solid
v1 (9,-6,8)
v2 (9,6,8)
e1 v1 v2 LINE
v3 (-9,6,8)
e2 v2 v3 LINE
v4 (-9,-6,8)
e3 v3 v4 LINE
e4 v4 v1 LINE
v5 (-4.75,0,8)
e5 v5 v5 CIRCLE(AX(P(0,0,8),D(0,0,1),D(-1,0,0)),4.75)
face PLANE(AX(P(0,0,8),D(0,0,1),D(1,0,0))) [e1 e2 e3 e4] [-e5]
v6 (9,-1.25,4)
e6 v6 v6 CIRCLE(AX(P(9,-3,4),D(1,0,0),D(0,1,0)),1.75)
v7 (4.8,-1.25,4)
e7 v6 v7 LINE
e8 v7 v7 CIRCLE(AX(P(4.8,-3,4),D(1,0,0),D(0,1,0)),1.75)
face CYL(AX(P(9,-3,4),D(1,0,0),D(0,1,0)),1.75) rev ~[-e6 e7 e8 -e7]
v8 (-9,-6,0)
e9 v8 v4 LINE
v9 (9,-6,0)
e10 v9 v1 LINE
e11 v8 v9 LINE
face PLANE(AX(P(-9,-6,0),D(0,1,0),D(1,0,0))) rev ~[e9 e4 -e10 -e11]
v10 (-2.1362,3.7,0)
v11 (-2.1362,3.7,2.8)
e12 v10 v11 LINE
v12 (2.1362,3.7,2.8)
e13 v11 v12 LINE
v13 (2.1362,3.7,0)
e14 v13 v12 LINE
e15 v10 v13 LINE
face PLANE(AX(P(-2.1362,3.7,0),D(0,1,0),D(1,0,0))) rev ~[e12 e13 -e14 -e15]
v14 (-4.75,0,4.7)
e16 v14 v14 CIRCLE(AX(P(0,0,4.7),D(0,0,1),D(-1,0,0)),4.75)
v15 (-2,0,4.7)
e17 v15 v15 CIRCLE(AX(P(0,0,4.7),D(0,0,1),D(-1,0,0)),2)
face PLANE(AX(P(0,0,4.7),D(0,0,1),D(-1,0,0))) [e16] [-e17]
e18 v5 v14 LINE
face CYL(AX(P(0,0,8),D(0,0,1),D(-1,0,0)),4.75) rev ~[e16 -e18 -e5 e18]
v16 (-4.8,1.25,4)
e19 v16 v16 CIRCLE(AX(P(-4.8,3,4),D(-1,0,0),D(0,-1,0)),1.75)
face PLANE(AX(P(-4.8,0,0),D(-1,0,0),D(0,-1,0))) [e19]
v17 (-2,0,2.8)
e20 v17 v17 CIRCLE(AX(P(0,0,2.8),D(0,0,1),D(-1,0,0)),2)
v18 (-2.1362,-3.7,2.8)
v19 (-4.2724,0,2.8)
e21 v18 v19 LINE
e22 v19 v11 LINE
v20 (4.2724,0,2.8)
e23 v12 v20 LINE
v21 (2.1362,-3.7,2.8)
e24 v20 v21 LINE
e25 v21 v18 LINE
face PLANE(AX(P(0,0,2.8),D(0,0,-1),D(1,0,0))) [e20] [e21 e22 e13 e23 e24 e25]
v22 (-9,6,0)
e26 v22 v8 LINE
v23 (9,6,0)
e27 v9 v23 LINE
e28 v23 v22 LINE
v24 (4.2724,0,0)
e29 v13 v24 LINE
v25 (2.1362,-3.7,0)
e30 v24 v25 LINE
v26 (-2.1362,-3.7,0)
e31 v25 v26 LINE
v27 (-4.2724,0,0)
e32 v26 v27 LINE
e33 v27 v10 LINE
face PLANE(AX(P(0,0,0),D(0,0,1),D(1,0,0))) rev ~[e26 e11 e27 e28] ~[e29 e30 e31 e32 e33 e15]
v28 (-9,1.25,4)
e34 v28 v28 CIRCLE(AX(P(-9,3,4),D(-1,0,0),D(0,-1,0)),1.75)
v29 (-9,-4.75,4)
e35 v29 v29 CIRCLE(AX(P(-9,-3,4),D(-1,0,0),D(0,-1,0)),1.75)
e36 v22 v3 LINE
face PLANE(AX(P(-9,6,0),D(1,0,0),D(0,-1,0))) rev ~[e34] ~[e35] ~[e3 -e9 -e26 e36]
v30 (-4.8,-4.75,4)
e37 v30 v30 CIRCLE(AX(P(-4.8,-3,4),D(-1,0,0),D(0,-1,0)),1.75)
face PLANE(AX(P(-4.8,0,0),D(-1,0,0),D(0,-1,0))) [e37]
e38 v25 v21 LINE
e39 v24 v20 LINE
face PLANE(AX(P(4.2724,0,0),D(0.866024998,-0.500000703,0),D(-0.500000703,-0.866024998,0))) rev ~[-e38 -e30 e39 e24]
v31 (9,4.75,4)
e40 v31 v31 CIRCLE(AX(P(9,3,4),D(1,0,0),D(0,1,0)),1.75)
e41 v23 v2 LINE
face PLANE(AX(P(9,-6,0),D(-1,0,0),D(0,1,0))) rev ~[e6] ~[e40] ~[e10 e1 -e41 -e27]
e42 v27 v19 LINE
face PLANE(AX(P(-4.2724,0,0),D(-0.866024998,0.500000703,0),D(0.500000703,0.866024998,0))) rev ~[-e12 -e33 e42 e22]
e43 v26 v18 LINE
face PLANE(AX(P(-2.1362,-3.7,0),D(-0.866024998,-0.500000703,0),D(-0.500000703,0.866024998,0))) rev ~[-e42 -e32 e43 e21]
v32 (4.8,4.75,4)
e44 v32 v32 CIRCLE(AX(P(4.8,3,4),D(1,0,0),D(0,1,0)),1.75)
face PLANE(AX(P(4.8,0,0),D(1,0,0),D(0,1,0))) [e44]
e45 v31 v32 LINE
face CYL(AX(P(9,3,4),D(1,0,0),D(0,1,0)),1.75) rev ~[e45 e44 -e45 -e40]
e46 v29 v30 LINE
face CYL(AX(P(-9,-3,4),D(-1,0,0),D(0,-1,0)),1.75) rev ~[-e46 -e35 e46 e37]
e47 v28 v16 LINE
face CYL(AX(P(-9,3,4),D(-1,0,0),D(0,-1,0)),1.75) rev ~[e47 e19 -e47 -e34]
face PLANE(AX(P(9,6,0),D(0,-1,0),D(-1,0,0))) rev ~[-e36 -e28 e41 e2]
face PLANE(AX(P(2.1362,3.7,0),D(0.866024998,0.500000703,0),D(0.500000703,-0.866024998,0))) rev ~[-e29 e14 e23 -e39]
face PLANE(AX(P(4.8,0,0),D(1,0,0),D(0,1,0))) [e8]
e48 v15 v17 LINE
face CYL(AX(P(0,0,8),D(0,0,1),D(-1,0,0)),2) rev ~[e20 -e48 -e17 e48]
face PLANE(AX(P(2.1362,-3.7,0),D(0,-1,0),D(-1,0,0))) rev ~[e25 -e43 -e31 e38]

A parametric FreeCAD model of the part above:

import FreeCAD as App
import Part
import Sketcher
Q = App.Units.Quantity

doc = App.newDocument("Part")
body = doc.addObject("PartDesign::Body", "Body")

sketch1 = body.newObject("Sketcher::SketchObject", "Sketch")
sketch1.AttachmentSupport = (doc.getObject("XY_Plane"), [""])
sketch1.MapMode = "FlatFace"
sketch1.addGeometry([
    Part.LineSegment(App.Vector(-9, 6, 0), App.Vector(-9, -6, 0)),
    Part.LineSegment(App.Vector(-9, -6, 0), App.Vector(9, -6, 0)),
    Part.LineSegment(App.Vector(9, -6, 0), App.Vector(9, 6, 0)),
    Part.LineSegment(App.Vector(9, 6, 0), App.Vector(-9, 6, 0)),
], False)
sketch1.addConstraint([
    Sketcher.Constraint("Coincident", 0, 2, 1, 1),
    Sketcher.Constraint("Coincident", 1, 2, 2, 1),
    Sketcher.Constraint("Coincident", 2, 2, 3, 1),
    Sketcher.Constraint("Coincident", 3, 2, 0, 1),
    Sketcher.Constraint("Vertical", 0),
    Sketcher.Constraint("Horizontal", 1),
    Sketcher.Constraint("Vertical", 2),
    Sketcher.Constraint("Horizontal", 3),
    Sketcher.Constraint("Symmetric", 0, 2, 2, 2, -1, 1),
    Sketcher.Constraint("DistanceX", 1, 1, 1, 2, 18.0),
    Sketcher.Constraint("DistanceY", 0, 2, 0, 1, 12.0),
])
pad1 = body.newObject("PartDesign::Pad", "Pad")
pad1.Profile = sketch1
pad1.Length = 8

sketch2 = body.newObject("Sketcher::SketchObject", "Sketch001")
sketch2.AttachmentSupport = (doc.getObject("XY_Plane"), [""])
sketch2.MapMode = "FlatFace"
sketch2.addGeometry([
    Part.LineSegment(App.Vector(-2.1, 3.7, 0), App.Vector(2.1, 3.7, 0)),
    Part.LineSegment(App.Vector(2.1, 3.7, 0), App.Vector(4.3, 0, 0)),
    Part.LineSegment(App.Vector(4.3, 0, 0), App.Vector(2.1, -3.7, 0)),
    Part.LineSegment(App.Vector(2.1, -3.7, 0), App.Vector(-2.1, -3.7, 0)),
    Part.LineSegment(App.Vector(-2.1, -3.7, 0), App.Vector(-4.3, 0, 0)),
    Part.LineSegment(App.Vector(-4.3, 0, 0), App.Vector(-2.1, 3.7, 0)),
], False)
sketch2.addConstraint([
    Sketcher.Constraint("Coincident", 0, 2, 1, 1),
    Sketcher.Constraint("Coincident", 1, 2, 2, 1),
    Sketcher.Constraint("Coincident", 2, 2, 3, 1),
    Sketcher.Constraint("Coincident", 3, 2, 4, 1),
    Sketcher.Constraint("Coincident", 4, 2, 5, 1),
    Sketcher.Constraint("Coincident", 5, 2, 0, 1),
    Sketcher.Constraint("Horizontal", 0),
    Sketcher.Constraint("Horizontal", 3),
    Sketcher.Constraint("Symmetric", 0, 2, 3, 2, -1, 1),
    Sketcher.Constraint("Symmetric", 1, 2, 4, 2, -1, 1),
    Sketcher.Constraint("PointOnObject", 1, 2, -1),
    Sketcher.Constraint("Parallel", 2, 5),
    Sketcher.Constraint("Vertical", 0, 2, 2, 2),
    Sketcher.Constraint("DistanceY", -1, 1, 0, 2, 3.7),
    Sketcher.Constraint("Angle", 1, Q("-60 deg")),
    Sketcher.Constraint("DistanceX", 0, 1, 0, 2, 4.2724),
])
pocket1 = body.newObject("PartDesign::Pocket", "Pocket")
pocket1.Profile = sketch2
pocket1.Length = 2.8
pocket1.Reversed = True

sketch3 = body.newObject("Sketcher::SketchObject", "Sketch002")
sketch3.AttachmentSupport = (doc.getObject("XY_Plane"), [""])
sketch3.MapMode = "FlatFace"
sketch3.AttachmentOffset = App.Placement(App.Vector(0, 0, 8), App.Rotation())
sketch3.addGeometry(Part.Circle(App.Vector(0, 0, 0), App.Vector(0, 0, 1), 2), False)
sketch3.addConstraint([
    Sketcher.Constraint("Coincident", 0, 3, -1, 1),
    Sketcher.Constraint("Diameter", 0, 4.0),
])
pocket2 = body.newObject("PartDesign::Pocket", "Pocket001")
pocket2.Profile = sketch3
pocket2.Length = 10

sketch4 = body.newObject("Sketcher::SketchObject", "Sketch003")
sketch4.AttachmentSupport = (doc.getObject("XY_Plane"), [""])
sketch4.MapMode = "FlatFace"
sketch4.AttachmentOffset = App.Placement(App.Vector(0, 0, 8), App.Rotation())
sketch4.addGeometry([
    Part.Circle(App.Vector(0, 0, 0), App.Vector(0, 0, 1), 4.8),
    Part.Circle(App.Vector(0, 0, 0), App.Vector(0, 0, 1), 2),
], False)
sketch4.addConstraint([
    Sketcher.Constraint("Coincident", 0, 3, -1, 1),
    Sketcher.Constraint("Coincident", 1, 3, -1, 1),
    Sketcher.Constraint("Diameter", 0, 9.5),
    Sketcher.Constraint("Diameter", 1, 4.0),
])
pocket3 = body.newObject("PartDesign::Pocket", "Pocket002")
pocket3.Profile = sketch4
pocket3.Length = 3.3

sketch5 = body.newObject("Sketcher::SketchObject", "Sketch004")
sketch5.AttachmentSupport = (doc.getObject("YZ_Plane"), [""])
sketch5.MapMode = "FlatFace"
sketch5.AttachmentOffset = App.Placement(App.Vector(0, 0, 9), App.Rotation())
sketch5.addGeometry([
    Part.Circle(App.Vector(-3, 4, 0), App.Vector(0, 0, 1), 1.8),
    Part.Circle(App.Vector(3, 4, 0), App.Vector(0, 0, 1), 1.8),
], False)
sketch5.addConstraint([
    Sketcher.Constraint("Equal", 0, 1),
    Sketcher.Constraint("Symmetric", 0, 3, 1, 3, -2),
    Sketcher.Constraint("Diameter", 0, 3.5),
    Sketcher.Constraint("DistanceX", 0, 3, -1, 1, 3.0),
    Sketcher.Constraint("DistanceY", -1, 1, 0, 3, 4.0),
])
pocket4 = body.newObject("PartDesign::Pocket", "Pocket003")
pocket4.Profile = sketch5
pocket4.Length = 4.2

sketch6 = body.newObject("Sketcher::SketchObject", "Sketch005")
sketch6.AttachmentSupport = (doc.getObject("YZ_Plane"), [""])
sketch6.MapMode = "FlatFace"
sketch6.AttachmentOffset = App.Placement(App.Vector(0, 0, -9), App.Rotation())
sketch6.addGeometry([
    Part.Circle(App.Vector(3, 4, 0), App.Vector(0, 0, 1), 1.8),
    Part.Circle(App.Vector(-3, 4, 0), App.Vector(0, 0, 1), 1.8),
], False)
sketch6.addConstraint([
    Sketcher.Constraint("Equal", 0, 1),
    Sketcher.Constraint("Symmetric", 0, 3, 1, 3, -2),
    Sketcher.Constraint("Diameter", 0, 3.5),
    Sketcher.Constraint("DistanceX", -1, 1, 0, 3, 3.0),
    Sketcher.Constraint("DistanceY", -1, 1, 0, 3, 4.0),
])
pocket5 = body.newObject("PartDesign::Pocket", "Pocket004")
pocket5.Profile = sketch6
pocket5.Length = 4.2
pocket5.Reversed = True

doc.recompute()
